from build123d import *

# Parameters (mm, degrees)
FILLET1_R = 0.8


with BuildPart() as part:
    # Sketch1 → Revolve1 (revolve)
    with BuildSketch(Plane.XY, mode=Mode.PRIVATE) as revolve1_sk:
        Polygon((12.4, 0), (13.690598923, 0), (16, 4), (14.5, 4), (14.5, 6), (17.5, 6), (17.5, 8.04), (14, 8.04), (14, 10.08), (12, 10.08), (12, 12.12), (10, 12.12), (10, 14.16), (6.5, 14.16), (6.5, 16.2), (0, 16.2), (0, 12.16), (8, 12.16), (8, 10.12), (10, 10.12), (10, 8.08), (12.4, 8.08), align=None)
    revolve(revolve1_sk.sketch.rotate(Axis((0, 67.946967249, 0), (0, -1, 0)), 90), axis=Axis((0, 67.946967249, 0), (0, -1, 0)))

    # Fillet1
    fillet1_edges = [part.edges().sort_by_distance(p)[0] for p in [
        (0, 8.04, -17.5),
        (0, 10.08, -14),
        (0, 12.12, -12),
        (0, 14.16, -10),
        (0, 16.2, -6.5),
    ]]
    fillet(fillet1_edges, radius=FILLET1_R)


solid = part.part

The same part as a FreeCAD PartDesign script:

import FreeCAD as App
import Part
import Sketcher
from FreeCAD import Vector
Q = App.Units.Quantity


def edges_at(feature, points):
    """Names of the edges that pass closest to the given points."""
    edges = feature.Shape.Edges
    near = lambda p: min(range(len(edges)), key=lambda i: edges[i].distToShape(Part.Vertex(*p))[0])
    return sorted({f"Edge{near(p) + 1}" for p in points})

doc = App.newDocument("Part")
body = doc.addObject("PartDesign::Body", "Body")

# Sketch on XY plane
sketch1 = body.newObject("Sketcher::SketchObject", "Sketch")
sketch1.AttachmentSupport = (doc.getObject("XY_Plane"), [""])
sketch1.MapMode = "FlatFace"
sketch1.addGeometry([
    Part.LineSegment(Vector(12.4, 0, 0), Vector(13.7, 0, 0)),  # 0
    Part.LineSegment(Vector(13.7, 0, 0), Vector(16, 4, 0)),  # 1
    Part.LineSegment(Vector(16, 4, 0), Vector(14.5, 4, 0)),  # 2
    Part.LineSegment(Vector(14.5, 4, 0), Vector(14.5, 6, 0)),  # 3
    Part.LineSegment(Vector(14.5, 6, 0), Vector(17.5, 6, 0)),  # 4
    Part.LineSegment(Vector(17.5, 6, 0), Vector(17.5, 8, 0)),  # 5
    Part.LineSegment(Vector(17.5, 8, 0), Vector(14, 8, 0)),  # 6
    Part.LineSegment(Vector(14, 8, 0), Vector(14, 10.1, 0)),  # 7
    Part.LineSegment(Vector(14, 10.1, 0), Vector(12, 10.1, 0)),  # 8
    Part.LineSegment(Vector(12, 10.1, 0), Vector(12, 12.1, 0)),  # 9
    Part.LineSegment(Vector(12, 12.1, 0), Vector(10, 12.1, 0)),  # 10
    Part.LineSegment(Vector(10, 12.1, 0), Vector(10, 14.2, 0)),  # 11
    Part.LineSegment(Vector(10, 14.2, 0), Vector(6.5, 14.2, 0)),  # 12
    Part.LineSegment(Vector(6.5, 14.2, 0), Vector(6.5, 16.2, 0)),  # 13
    Part.LineSegment(Vector(6.5, 16.2, 0), Vector(0, 16.2, 0)),  # 14
    Part.LineSegment(Vector(0, 16.2, 0), Vector(0, 12.2, 0)),  # 15
    Part.LineSegment(Vector(0, 12.2, 0), Vector(8, 12.2, 0)),  # 16
    Part.LineSegment(Vector(8, 12.2, 0), Vector(8, 10.1, 0)),  # 17
    Part.LineSegment(Vector(8, 10.1, 0), Vector(10, 10.1, 0)),  # 18
    Part.LineSegment(Vector(10, 10.1, 0), Vector(10, 8.1, 0)),  # 19
    Part.LineSegment(Vector(10, 8.1, 0), Vector(12.4, 8.1, 0)),  # 20
    Part.LineSegment(Vector(12.4, 8.1, 0), Vector(12.4, 0, 0)),  # 21
], False)
sketch1.addConstraint([
    Sketcher.Constraint("Coincident", 0, 2, 1, 1),
    Sketcher.Constraint("Coincident", 1, 2, 2, 1),
    Sketcher.Constraint("Coincident", 2, 2, 3, 1),
    Sketcher.Constraint("Coincident", 3, 2, 4, 1),
    Sketcher.Constraint("Coincident", 4, 2, 5, 1),
    Sketcher.Constraint("Coincident", 5, 2, 6, 1),
    Sketcher.Constraint("Coincident", 6, 2, 7, 1),
    Sketcher.Constraint("Coincident", 7, 2, 8, 1),
    Sketcher.Constraint("Coincident", 8, 2, 9, 1),
    Sketcher.Constraint("Coincident", 9, 2, 10, 1),
    Sketcher.Constraint("Coincident", 10, 2, 11, 1),
    Sketcher.Constraint("Coincident", 11, 2, 12, 1),
    Sketcher.Constraint("Coincident", 12, 2, 13, 1),
    Sketcher.Constraint("Coincident", 13, 2, 14, 1),
    Sketcher.Constraint("Coincident", 14, 2, 15, 1),
    Sketcher.Constraint("Coincident", 15, 2, 16, 1),
    Sketcher.Constraint("Coincident", 16, 2, 17, 1),
    Sketcher.Constraint("Coincident", 17, 2, 18, 1),
    Sketcher.Constraint("Coincident", 18, 2, 19, 1),
    Sketcher.Constraint("Coincident", 19, 2, 20, 1),
    Sketcher.Constraint("Coincident", 20, 2, 21, 1),
    Sketcher.Constraint("Coincident", 21, 2, 0, 1),
    Sketcher.Constraint("Horizontal", 0),
    Sketcher.Constraint("Horizontal", 2),
    Sketcher.Constraint("Vertical", 3),
    Sketcher.Constraint("Horizontal", 4),
    Sketcher.Constraint("Vertical", 5),
    Sketcher.Constraint("Horizontal", 6),
    Sketcher.Constraint("Vertical", 7),
    Sketcher.Constraint("Horizontal", 8),
    Sketcher.Constraint("Vertical", 9),
    Sketcher.Constraint("Horizontal", 10),
    Sketcher.Constraint("Vertical", 11),
    Sketcher.Constraint("Horizontal", 12),
    Sketcher.Constraint("Vertical", 13),
    Sketcher.Constraint("Horizontal", 14),
    Sketcher.Constraint("Vertical", 15),
    Sketcher.Constraint("Horizontal", 16),
    Sketcher.Constraint("Vertical", 17),
    Sketcher.Constraint("Horizontal", 18),
    Sketcher.Constraint("Vertical", 19),
    Sketcher.Constraint("Horizontal", 20),
    Sketcher.Constraint("Vertical", 21),
    Sketcher.Constraint("PointOnObject", 0, 2, -1),
    Sketcher.Constraint("PointOnObject", 14, 2, -2),
    Sketcher.Constraint("Vertical", 11, 2, 18, 2),
    Sketcher.Constraint("Equal", 8, 10),
    Sketcher.Constraint("Equal", 6, 12),
    Sketcher.Constraint("Equal", 10, 18),
    Sketcher.Constraint("Equal", 18, 3),
    Sketcher.Constraint("Equal", 5, 7),
    Sketcher.Constraint("Equal", 7, 9),
    Sketcher.Constraint("Equal", 9, 11),
    Sketcher.Constraint("Equal", 11, 13),
    Sketcher.Constraint("Equal", 13, 17),
    Sketcher.Constraint("Equal", 17, 19),
    Sketcher.Constraint("DistanceX", 4, 1, 4, 2, 3.0),
    Sketcher.Constraint("DistanceX", 8, 2, 8, 1, 2.0),
    Sketcher.Constraint("DistanceX", 16, 1, 16, 2, 8.0),
    Sketcher.Constraint("Angle", 1, Q("60 deg")),
    Sketcher.Constraint("DistanceX", 2, 2, 2, 1, 1.5),
    Sketcher.Constraint("DistanceX", 6, 2, 6, 1, 3.5),
    Sketcher.Constraint("DistanceX", 20, 1, 20, 2, 2.4),
    Sketcher.Constraint("DistanceY", -1, 1, 1, 2, 4.0),
    Sketcher.Constraint("DistanceY", 15, 2, 12, 2, 2.0),
    Sketcher.Constraint("DistanceY", 5, 1, 5, 2, 2.04),
])
revolution = body.newObject("PartDesign::Revolution", "Revolution")
revolution.Profile = sketch1
revolution.ReferenceAxis = (sketch1, ["V_Axis"])
revolution.Angle = 360
doc.recompute()

fillet = body.newObject("PartDesign::Fillet", "Fillet")
fillet.Base = (revolution, edges_at(revolution, [
    (0, 8.04, -17.5),
    (0, 10.08, -14),
    (0, 12.12, -12),
    (0, 14.16, -10),
    (0, 16.2, -6.5),
]))
fillet.Radius = 0.8

doc.recompute()
